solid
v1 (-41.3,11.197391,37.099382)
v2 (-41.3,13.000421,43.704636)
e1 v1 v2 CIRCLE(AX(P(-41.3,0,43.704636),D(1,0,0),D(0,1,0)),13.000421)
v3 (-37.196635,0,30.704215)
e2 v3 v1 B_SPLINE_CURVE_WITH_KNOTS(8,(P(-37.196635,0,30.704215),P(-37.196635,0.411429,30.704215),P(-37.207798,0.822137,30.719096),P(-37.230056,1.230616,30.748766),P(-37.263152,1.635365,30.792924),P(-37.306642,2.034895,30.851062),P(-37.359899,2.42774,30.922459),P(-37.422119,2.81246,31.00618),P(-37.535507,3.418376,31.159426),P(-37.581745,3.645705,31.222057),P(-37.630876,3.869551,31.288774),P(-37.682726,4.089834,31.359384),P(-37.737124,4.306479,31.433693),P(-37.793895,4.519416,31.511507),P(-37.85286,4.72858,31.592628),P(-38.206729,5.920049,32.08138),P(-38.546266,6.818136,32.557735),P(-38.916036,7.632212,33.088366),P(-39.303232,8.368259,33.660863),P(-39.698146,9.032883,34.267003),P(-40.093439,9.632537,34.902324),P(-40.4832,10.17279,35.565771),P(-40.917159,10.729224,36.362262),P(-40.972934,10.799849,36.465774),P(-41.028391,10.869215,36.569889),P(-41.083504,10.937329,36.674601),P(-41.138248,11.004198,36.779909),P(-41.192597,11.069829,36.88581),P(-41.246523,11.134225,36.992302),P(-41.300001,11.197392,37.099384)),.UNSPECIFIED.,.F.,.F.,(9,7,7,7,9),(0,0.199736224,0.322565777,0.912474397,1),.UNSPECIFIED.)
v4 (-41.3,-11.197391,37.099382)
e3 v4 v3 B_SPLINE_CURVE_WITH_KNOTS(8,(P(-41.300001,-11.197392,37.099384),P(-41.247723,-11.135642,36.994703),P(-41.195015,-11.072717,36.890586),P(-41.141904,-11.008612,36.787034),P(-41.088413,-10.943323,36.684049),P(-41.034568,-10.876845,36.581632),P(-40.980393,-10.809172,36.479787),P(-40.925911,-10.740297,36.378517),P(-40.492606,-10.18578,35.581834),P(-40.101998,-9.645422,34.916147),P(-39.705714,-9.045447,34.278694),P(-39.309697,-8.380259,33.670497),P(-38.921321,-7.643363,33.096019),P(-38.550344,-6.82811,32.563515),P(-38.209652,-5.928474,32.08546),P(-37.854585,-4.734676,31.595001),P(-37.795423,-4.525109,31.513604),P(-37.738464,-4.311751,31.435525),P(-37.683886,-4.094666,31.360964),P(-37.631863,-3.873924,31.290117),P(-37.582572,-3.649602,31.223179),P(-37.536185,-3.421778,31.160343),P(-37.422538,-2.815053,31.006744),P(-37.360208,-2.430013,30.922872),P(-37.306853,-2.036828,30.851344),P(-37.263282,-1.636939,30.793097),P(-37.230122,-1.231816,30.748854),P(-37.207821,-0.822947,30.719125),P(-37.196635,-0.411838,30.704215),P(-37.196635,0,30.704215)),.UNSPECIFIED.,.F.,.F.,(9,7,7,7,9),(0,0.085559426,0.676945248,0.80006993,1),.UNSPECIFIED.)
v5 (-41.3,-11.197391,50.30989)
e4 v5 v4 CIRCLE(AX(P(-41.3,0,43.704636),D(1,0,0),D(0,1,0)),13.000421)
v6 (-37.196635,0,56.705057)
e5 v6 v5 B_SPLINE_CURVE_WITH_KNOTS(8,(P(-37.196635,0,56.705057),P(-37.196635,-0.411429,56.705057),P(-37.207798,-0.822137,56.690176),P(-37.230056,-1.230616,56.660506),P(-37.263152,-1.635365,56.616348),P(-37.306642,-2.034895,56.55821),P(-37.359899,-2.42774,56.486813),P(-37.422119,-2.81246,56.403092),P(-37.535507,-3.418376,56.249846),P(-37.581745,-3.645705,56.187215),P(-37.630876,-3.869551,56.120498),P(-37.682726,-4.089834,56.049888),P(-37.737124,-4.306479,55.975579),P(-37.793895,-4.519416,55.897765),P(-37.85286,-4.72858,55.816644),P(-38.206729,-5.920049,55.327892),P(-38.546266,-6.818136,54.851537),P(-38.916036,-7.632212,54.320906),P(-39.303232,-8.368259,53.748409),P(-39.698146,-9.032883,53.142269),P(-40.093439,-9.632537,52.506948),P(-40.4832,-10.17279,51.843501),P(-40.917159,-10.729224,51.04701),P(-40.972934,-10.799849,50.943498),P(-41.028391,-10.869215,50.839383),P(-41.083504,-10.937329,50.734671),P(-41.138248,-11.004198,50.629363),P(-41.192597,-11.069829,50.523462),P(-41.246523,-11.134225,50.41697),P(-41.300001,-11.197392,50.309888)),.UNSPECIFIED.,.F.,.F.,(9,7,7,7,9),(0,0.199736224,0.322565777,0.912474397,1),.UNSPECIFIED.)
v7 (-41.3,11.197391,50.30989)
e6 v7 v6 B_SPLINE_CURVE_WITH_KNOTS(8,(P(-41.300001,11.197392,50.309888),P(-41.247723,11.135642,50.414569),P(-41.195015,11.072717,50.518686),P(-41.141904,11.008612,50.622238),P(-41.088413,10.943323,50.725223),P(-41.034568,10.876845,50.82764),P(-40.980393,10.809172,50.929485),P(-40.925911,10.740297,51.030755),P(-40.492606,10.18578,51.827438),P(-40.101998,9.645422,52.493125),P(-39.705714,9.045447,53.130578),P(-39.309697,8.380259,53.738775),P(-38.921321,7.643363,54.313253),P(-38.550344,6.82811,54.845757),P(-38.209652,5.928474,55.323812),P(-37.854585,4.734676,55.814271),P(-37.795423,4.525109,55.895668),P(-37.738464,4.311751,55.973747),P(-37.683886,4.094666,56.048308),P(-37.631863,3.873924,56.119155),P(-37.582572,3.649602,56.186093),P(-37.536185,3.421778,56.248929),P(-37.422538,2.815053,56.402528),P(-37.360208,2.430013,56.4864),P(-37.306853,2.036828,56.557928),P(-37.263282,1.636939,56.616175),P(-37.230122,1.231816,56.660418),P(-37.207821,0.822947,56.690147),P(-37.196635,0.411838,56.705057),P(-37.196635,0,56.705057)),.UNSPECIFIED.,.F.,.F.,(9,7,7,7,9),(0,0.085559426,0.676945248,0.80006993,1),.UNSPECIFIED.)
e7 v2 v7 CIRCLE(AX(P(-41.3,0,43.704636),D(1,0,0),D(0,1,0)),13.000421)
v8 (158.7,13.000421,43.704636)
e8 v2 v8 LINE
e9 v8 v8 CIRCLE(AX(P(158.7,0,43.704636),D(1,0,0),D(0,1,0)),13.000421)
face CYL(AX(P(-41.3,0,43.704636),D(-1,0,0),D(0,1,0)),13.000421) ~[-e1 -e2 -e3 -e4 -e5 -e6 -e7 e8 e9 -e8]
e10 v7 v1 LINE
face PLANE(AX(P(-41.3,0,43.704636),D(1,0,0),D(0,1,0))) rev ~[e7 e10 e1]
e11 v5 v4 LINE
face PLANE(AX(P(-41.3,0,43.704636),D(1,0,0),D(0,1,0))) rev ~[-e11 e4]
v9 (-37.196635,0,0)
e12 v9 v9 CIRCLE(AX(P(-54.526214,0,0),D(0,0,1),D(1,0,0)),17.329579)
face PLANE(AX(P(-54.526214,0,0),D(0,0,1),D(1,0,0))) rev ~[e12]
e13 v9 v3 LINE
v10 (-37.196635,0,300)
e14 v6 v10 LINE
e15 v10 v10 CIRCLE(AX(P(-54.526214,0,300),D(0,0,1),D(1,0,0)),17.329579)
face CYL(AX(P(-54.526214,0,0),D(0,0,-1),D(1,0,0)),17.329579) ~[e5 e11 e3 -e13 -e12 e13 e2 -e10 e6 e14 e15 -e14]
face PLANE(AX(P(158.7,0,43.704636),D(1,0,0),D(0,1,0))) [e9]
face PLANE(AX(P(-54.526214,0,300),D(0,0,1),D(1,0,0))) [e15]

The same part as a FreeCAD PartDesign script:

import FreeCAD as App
import Part
import Sketcher

V = App.Vector
Q = App.Units.Quantity

doc = App.newDocument("Part")
body = doc.addObject("PartDesign::Body", "Body")

# Sketch on XY plane
sketch1 = body.newObject("Sketcher::SketchObject", "Sketch")
sketch1.AttachmentSupport = (doc.getObject("XY_Plane"), [""])
sketch1.MapMode = "FlatFace"
sketch1.addGeometry(Part.Circle(V(-55, 0, 0), V(0, 0, 1), 17), False)
sketch1.addConstraint(Sketcher.Constraint("PointOnObject", 0, 3, -1))
sketch1.addConstraint(Sketcher.Constraint("Diameter", 0, Q("34.659158 mm")))
sketch1.addConstraint(Sketcher.Constraint("DistanceX", 0, 3, -1, 1, Q("54.526214 mm")))
pad1 = body.newObject("PartDesign::Pad", "Pad")
pad1.Profile = sketch1
pad1.Length = 300

# Sketch on YZ plane
sketch2 = body.newObject("Sketcher::SketchObject", "Sketch001")
sketch2.AttachmentSupport = (doc.getObject("YZ_Plane"), [""])
sketch2.MapMode = "FlatFace"
sketch2.AttachmentOffset = App.Placement(V(0, 0, -41.3), App.Rotation())
sketch2.addGeometry(Part.Circle(V(0, 44, 0), V(0, 0, 1), 13), False)
sketch2.addConstraint(Sketcher.Constraint("PointOnObject", 0, 3, -2))
sketch2.addConstraint(Sketcher.Constraint("Diameter", 0, Q("26.000842 mm")))
sketch2.addConstraint(Sketcher.Constraint("DistanceY", -1, 1, 0, 3, Q("43.704636 mm")))
pad2 = body.newObject("PartDesign::Pad", "Pad001")
pad2.Profile = sketch2
pad2.Length = 200

doc.recompute()
